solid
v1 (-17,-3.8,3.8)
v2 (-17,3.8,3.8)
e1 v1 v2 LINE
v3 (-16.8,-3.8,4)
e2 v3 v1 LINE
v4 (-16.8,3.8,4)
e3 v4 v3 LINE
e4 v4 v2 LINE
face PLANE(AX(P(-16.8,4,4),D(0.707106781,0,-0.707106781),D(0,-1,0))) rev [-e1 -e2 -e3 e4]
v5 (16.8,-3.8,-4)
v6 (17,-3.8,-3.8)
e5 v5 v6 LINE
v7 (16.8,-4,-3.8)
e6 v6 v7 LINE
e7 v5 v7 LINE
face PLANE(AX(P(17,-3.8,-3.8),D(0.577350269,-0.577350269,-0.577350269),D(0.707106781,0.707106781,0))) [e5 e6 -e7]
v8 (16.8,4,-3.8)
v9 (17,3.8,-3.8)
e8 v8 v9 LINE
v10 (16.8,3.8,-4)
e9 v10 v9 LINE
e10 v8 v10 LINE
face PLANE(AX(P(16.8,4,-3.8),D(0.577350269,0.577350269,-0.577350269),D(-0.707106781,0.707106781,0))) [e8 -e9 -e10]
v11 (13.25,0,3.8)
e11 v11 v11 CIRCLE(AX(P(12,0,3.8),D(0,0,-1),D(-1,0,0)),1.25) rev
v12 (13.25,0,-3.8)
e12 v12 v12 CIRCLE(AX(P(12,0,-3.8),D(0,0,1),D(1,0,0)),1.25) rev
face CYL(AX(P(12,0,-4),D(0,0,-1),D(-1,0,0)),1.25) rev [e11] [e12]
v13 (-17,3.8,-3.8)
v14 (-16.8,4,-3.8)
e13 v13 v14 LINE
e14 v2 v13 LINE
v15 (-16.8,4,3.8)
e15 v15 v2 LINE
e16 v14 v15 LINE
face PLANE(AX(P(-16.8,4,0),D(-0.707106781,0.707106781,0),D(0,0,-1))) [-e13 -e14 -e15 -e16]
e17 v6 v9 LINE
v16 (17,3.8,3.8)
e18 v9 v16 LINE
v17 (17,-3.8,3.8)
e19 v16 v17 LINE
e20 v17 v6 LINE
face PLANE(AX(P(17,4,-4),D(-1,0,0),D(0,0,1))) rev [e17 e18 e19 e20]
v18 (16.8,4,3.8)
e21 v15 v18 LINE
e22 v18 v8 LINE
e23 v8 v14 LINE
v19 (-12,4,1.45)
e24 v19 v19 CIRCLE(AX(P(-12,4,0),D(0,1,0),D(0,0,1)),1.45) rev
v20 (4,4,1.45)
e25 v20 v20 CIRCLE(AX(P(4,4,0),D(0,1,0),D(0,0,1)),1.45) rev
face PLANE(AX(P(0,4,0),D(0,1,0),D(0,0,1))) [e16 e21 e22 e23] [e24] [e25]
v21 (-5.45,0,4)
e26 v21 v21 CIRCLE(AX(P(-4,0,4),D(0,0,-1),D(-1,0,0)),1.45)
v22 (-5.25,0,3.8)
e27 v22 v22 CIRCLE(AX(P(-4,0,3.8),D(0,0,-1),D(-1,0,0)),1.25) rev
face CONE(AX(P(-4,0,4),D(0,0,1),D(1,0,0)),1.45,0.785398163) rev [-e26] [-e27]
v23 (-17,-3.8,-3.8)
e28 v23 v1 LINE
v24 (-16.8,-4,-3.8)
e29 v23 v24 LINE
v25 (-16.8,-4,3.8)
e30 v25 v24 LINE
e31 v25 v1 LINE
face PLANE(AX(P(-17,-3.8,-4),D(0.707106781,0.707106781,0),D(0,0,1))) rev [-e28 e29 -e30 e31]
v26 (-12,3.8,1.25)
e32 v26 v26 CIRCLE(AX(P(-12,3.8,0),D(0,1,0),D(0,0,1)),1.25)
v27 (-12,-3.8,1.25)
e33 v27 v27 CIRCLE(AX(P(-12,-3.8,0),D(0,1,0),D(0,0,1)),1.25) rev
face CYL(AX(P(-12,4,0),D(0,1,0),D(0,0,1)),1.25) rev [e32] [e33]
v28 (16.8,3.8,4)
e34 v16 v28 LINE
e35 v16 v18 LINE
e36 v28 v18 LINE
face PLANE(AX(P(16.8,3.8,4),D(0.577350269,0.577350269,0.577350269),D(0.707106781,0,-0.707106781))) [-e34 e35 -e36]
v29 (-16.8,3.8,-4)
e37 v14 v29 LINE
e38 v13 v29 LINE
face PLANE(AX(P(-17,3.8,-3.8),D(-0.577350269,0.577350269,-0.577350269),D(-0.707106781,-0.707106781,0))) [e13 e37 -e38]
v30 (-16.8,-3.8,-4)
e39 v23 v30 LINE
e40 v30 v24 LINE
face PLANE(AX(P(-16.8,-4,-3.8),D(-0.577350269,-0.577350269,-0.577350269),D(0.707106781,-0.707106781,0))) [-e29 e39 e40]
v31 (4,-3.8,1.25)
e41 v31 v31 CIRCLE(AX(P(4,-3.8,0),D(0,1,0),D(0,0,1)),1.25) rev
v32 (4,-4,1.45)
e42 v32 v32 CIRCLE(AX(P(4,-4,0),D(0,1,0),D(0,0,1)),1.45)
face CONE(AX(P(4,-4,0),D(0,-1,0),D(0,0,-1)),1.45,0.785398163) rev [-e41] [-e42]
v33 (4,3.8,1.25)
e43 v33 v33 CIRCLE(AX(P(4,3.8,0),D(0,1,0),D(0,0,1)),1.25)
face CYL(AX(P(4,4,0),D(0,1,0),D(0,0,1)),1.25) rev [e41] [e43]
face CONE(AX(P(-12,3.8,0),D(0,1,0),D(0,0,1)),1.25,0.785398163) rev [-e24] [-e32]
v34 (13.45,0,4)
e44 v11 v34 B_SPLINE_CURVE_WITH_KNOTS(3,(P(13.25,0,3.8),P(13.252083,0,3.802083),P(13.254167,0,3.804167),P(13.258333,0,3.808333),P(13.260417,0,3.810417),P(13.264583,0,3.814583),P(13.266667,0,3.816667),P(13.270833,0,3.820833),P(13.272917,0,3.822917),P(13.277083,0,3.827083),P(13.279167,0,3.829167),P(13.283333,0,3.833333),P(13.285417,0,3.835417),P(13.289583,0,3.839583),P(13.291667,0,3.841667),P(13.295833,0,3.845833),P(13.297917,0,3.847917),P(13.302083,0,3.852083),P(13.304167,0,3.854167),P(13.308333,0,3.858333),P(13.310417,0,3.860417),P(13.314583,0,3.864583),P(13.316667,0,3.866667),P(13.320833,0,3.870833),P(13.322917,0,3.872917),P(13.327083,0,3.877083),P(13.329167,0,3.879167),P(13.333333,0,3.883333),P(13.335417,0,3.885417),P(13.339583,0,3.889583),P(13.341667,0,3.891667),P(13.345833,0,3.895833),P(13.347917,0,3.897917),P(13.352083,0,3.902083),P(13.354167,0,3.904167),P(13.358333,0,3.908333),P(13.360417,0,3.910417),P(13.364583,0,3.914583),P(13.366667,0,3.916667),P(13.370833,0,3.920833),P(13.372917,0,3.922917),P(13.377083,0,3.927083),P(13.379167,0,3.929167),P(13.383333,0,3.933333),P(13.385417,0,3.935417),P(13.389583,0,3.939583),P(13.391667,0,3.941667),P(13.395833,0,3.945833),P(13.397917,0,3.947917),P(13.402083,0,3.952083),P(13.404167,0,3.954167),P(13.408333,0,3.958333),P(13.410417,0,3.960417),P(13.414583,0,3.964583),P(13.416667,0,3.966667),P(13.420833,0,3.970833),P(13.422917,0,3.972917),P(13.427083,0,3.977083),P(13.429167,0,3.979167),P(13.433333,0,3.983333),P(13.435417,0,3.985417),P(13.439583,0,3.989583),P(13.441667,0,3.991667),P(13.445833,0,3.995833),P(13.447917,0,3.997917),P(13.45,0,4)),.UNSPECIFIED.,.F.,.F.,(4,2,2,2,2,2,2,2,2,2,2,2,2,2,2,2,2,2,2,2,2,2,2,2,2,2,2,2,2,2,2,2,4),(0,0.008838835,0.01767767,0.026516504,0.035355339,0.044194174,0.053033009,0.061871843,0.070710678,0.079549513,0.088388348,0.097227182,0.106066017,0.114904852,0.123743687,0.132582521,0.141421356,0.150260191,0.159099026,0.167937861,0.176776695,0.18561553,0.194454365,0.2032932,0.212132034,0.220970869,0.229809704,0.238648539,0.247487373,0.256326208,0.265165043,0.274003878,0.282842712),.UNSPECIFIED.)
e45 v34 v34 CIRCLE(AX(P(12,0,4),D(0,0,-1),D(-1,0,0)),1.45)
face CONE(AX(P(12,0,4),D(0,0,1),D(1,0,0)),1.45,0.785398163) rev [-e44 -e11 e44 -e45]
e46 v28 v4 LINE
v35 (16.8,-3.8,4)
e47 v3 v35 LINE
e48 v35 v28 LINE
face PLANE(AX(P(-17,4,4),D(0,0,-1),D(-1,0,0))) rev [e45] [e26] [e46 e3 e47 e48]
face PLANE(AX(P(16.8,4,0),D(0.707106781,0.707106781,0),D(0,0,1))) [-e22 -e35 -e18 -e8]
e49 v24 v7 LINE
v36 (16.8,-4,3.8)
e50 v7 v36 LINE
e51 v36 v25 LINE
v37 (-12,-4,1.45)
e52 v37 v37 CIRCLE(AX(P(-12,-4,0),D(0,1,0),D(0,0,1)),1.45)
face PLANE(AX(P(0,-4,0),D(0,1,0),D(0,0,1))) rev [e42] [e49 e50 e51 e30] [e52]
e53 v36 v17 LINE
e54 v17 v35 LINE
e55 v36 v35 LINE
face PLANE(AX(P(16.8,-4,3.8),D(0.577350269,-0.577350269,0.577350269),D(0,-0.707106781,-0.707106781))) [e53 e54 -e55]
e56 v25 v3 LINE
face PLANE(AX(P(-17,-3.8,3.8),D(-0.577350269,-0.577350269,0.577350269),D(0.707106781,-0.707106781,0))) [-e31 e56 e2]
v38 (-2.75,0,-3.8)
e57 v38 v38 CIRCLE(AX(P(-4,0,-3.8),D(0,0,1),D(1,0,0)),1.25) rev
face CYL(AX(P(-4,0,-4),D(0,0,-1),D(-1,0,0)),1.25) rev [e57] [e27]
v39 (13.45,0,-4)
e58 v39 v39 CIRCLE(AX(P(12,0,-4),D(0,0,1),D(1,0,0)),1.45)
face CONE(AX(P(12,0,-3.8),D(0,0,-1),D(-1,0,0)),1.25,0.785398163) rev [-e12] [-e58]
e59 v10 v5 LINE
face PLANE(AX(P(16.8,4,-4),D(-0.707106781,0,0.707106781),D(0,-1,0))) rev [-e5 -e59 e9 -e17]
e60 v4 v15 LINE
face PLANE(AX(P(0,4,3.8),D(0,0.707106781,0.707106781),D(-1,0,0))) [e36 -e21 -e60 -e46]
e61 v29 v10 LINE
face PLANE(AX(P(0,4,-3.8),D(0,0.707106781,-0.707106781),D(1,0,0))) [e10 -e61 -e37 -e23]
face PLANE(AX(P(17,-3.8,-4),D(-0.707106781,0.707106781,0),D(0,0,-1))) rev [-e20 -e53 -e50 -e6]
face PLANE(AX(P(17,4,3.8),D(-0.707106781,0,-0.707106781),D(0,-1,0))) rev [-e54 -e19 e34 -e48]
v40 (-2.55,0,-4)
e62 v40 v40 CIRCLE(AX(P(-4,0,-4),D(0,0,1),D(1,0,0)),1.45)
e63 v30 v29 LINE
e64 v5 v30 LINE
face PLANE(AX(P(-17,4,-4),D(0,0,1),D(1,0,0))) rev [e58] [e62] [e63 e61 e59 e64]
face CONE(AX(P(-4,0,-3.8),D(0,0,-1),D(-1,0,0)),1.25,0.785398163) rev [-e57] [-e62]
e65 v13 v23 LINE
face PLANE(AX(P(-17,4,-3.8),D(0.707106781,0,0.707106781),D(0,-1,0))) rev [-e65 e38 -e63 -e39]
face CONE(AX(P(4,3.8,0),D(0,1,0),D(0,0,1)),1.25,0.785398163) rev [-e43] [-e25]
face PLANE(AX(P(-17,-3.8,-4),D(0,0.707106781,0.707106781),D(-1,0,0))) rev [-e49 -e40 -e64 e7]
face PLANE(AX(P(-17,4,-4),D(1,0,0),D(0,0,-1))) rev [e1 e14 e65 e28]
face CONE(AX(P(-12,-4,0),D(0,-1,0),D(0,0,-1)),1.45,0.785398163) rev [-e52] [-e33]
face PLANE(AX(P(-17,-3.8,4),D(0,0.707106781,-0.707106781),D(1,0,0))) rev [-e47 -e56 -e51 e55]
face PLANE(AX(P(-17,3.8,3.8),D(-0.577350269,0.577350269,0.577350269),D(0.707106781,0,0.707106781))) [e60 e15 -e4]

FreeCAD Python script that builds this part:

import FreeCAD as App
import Part
import Sketcher

V = App.Vector

doc = App.newDocument("Part")
body = doc.addObject("PartDesign::Body", "Body")

# Sketch on XZ plane
sketch1 = body.newObject("Sketcher::SketchObject", "Sketch")
sketch1.AttachmentSupport = (doc.getObject("XZ_Plane"), [""])
sketch1.MapMode = "FlatFace"
sketch1.addGeometry([
    Part.LineSegment(V(-17, -4, 0), V(-17, 4, 0)),
    Part.LineSegment(V(-17, 4, 0), V(17, 4, 0)),
    Part.LineSegment(V(17, 4, 0), V(17, -4, 0)),
    Part.LineSegment(V(17, -4, 0), V(-17, -4, 0)),
], False)
sketch1.addConstraint([
    Sketcher.Constraint("Coincident", 0, 2, 1, 1),
    Sketcher.Constraint("Coincident", 1, 2, 2, 1),
    Sketcher.Constraint("Coincident", 2, 2, 3, 1),
    Sketcher.Constraint("Coincident", 3, 2, 0, 1),
    Sketcher.Constraint("Vertical", 0),
    Sketcher.Constraint("Horizontal", 1),
    Sketcher.Constraint("Vertical", 2),
    Sketcher.Constraint("Horizontal", 3),
    Sketcher.Constraint("Symmetric", 0, 2, 2, 2, -1, 1),
    Sketcher.Constraint("DistanceX", 1, 1, 1, 2, 34.0),
    Sketcher.Constraint("DistanceY", 0, 1, 0, 2, 8.0),
])
pad1 = body.newObject("PartDesign::Pad", "Pad")
pad1.Profile = sketch1
pad1.Length = 8
pad1.Midplane = True

# Sketch on XZ plane
sketch2 = body.newObject("Sketcher::SketchObject", "Sketch001")
sketch2.AttachmentSupport = (doc.getObject("XZ_Plane"), [""])
sketch2.MapMode = "FlatFace"
sketch2.AttachmentOffset = App.Placement(V(0, 0, -4), App.Rotation())
sketch2.addGeometry([
    Part.Circle(V(-12, 0, 0), V(0, 0, 1), 1.2),
    Part.Circle(V(4, 0, 0), V(0, 0, 1), 1.2),
], False)
sketch2.addConstraint([
    Sketcher.Constraint("Equal", 0, 1),
    Sketcher.Constraint("PointOnObject", 0, 3, -1),
    Sketcher.Constraint("PointOnObject", 1, 3, -1),
    Sketcher.Constraint("Diameter", 0, 2.5),
    Sketcher.Constraint("DistanceX", 0, 3, -1, 1, 12.0),
    Sketcher.Constraint("DistanceX", -1, 1, 1, 3, 4.0),
])
doc.recompute()
hole = body.newObject("PartDesign::Hole", "Hole")
hole.Profile = sketch2
hole.ThreadType = "None"
hole.Diameter = 2.5
hole.DepthType = "ThroughAll"
hole.Reversed = True

# Sketch on XY plane
sketch3 = body.newObject("Sketcher::SketchObject", "Sketch002")
sketch3.AttachmentSupport = (doc.getObject("XY_Plane"), [""])
sketch3.MapMode = "FlatFace"
sketch3.AttachmentOffset = App.Placement(V(0, 0, -4), App.Rotation())
sketch3.addGeometry([
    Part.Circle(V(12, 0, 0), V(0, 0, 1), 1.2),
    Part.Circle(V(-4, 0, 0), V(0, 0, 1), 1.2),
], False)
sketch3.addConstraint([
    Sketcher.Constraint("Equal", 0, 1),
    Sketcher.Constraint("PointOnObject", 0, 3, -1),
    Sketcher.Constraint("PointOnObject", 1, 3, -1),
    Sketcher.Constraint("Diameter", 0, 2.5),
    Sketcher.Constraint("DistanceX", -1, 1, 0, 3, 12.0),
    Sketcher.Constraint("DistanceX", 1, 3, -1, 1, 4.0),
])
doc.recompute()
hole2 = body.newObject("PartDesign::Hole", "Hole001")
hole2.Profile = sketch3
hole2.ThreadType = "None"
hole2.Diameter = 2.5
hole2.DepthType = "ThroughAll"
hole2.Reversed = True
doc.recompute()

chamfer = body.newObject("PartDesign::Chamfer", "Chamfer")
chamfer.Base = (hole2, ["Edge1"])
chamfer.UseAllEdges = True
chamfer.Size = 0.2

doc.recompute()
